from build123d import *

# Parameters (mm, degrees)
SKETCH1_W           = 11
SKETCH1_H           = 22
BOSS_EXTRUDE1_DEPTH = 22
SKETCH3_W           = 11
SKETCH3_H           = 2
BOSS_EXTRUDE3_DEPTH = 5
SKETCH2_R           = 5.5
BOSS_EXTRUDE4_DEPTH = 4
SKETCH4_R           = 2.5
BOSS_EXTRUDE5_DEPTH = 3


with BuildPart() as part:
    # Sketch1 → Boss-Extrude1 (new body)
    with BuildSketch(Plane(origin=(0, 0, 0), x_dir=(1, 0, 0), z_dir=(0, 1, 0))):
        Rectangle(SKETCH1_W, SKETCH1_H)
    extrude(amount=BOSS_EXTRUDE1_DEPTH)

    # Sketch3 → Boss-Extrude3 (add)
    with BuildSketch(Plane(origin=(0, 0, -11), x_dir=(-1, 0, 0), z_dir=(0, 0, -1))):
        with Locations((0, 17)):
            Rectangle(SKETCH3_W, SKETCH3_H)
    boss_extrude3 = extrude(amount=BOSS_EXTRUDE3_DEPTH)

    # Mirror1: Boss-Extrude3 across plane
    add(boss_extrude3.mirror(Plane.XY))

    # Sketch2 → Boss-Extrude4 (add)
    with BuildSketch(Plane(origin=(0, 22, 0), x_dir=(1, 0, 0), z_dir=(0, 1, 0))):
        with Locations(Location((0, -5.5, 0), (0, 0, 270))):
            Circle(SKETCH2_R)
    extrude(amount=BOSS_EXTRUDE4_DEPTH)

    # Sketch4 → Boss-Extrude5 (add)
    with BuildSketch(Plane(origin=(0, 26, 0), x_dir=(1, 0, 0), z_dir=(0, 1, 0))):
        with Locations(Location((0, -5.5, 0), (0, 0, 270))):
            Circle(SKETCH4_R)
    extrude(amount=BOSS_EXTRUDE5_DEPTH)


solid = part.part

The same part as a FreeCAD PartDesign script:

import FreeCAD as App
import Part
import Sketcher
Q = App.Units.Quantity

doc = App.newDocument("Part")
body = doc.addObject("PartDesign::Body", "Body")

sketch1 = body.newObject("Sketcher::SketchObject", "Sketch")
sketch1.AttachmentSupport = (doc.getObject("XZ_Plane"), [""])
sketch1.MapMode = "FlatFace"
sketch1.addGeometry([
    Part.LineSegment(App.Vector(-6, -11, 0), App.Vector(-6, 11, 0)),
    Part.LineSegment(App.Vector(-6, 11, 0), App.Vector(6, 11, 0)),
    Part.LineSegment(App.Vector(6, 11, 0), App.Vector(6, -11, 0)),
    Part.LineSegment(App.Vector(6, -11, 0), App.Vector(-6, -11, 0)),
], False)
sketch1.addConstraint([
    Sketcher.Constraint("Coincident", 0, 2, 1, 1),
    Sketcher.Constraint("Coincident", 1, 2, 2, 1),
    Sketcher.Constraint("Coincident", 2, 2, 3, 1),
    Sketcher.Constraint("Coincident", 3, 2, 0, 1),
    Sketcher.Constraint("Vertical", 0),
    Sketcher.Constraint("Horizontal", 1),
    Sketcher.Constraint("Vertical", 2),
    Sketcher.Constraint("Horizontal", 3),
    Sketcher.Constraint("Symmetric", 0, 2, 2, 2, -1, 1),
    Sketcher.Constraint("DistanceX", 1, 1, 1, 2, Q("11 mm")),
    Sketcher.Constraint("DistanceY", 0, 1, 0, 2, Q("22 mm")),
])
pad1 = body.newObject("PartDesign::Pad", "Pad")
pad1.Profile = sketch1
pad1.Length = 22
pad1.Reversed = True

sketch2 = body.newObject("Sketcher::SketchObject", "Sketch001")
sketch2.AttachmentSupport = (doc.getObject("XY_Plane"), [""])
sketch2.MapMode = "FlatFace"
sketch2.AttachmentOffset = App.Placement(App.Vector(0, 0, -11), App.Rotation())
sketch2.addGeometry([
    Part.LineSegment(App.Vector(5.5, 18, 0), App.Vector(5.5, 16, 0)),
    Part.LineSegment(App.Vector(5.5, 16, 0), App.Vector(-5.5, 16, 0)),
    Part.LineSegment(App.Vector(-5.5, 16, 0), App.Vector(-5.5, 18, 0)),
    Part.LineSegment(App.Vector(-5.5, 18, 0), App.Vector(5.5, 18, 0)),
], False)
sketch2.addConstraint([
    Sketcher.Constraint("Coincident", 0, 2, 1, 1),
    Sketcher.Constraint("Coincident", 1, 2, 2, 1),
    Sketcher.Constraint("Coincident", 2, 2, 3, 1),
    Sketcher.Constraint("Coincident", 3, 2, 0, 1),
    Sketcher.Constraint("Vertical", 0),
    Sketcher.Constraint("Horizontal", 1),
    Sketcher.Constraint("Vertical", 2),
    Sketcher.Constraint("Horizontal", 3),
    Sketcher.Constraint("DistanceX", 1, 2, 1, 1, Q("11 mm")),
    Sketcher.Constraint("DistanceY", 0, 2, 0, 1, Q("2 mm")),
    Sketcher.Constraint("DistanceY", -1, 1, 0, 2, Q("16 mm")),
    Sketcher.Constraint("DistanceX", -1, 1, 0, 2, Q("5.5 mm")),
])
pad2 = body.newObject("PartDesign::Pad", "Pad001")
pad2.Profile = sketch2
pad2.Length = 5
pad2.Reversed = True
doc.recompute()

mirrored = body.newObject("PartDesign::Mirrored", "Mirrored")
mirrored.Originals = [pad2]
mirrored.MirrorPlane = (doc.getObject("XY_Plane"), [""])
body.Tip = mirrored

sketch3 = body.newObject("Sketcher::SketchObject", "Sketch002")
sketch3.AttachmentSupport = (doc.getObject("XZ_Plane"), [""])
sketch3.MapMode = "FlatFace"
sketch3.AttachmentOffset = App.Placement(App.Vector(0, 0, -22), App.Rotation())
sketch3.addGeometry(Part.Circle(App.Vector(0, 6, 0), App.Vector(0, 0, 1), 6), False)
sketch3.addConstraint([
    Sketcher.Constraint("PointOnObject", 0, 3, -2),
    Sketcher.Constraint("Diameter", 0, Q("11 mm")),
    Sketcher.Constraint("DistanceY", -1, 1, 0, 3, Q("5.5 mm")),
])
pad3 = body.newObject("PartDesign::Pad", "Pad002")
pad3.Profile = sketch3
pad3.Length = 4
pad3.Reversed = True

sketch4 = body.newObject("Sketcher::SketchObject", "Sketch003")
sketch4.AttachmentSupport = (doc.getObject("XZ_Plane"), [""])
sketch4.MapMode = "FlatFace"
sketch4.AttachmentOffset = App.Placement(App.Vector(0, 0, -26), App.Rotation())
sketch4.addGeometry(Part.Circle(App.Vector(0, 5.5, 0), App.Vector(0, 0, 1), 2.5), False)
sketch4.addConstraint([
    Sketcher.Constraint("PointOnObject", 0, 3, -2),
    Sketcher.Constraint("Diameter", 0, Q("5 mm")),
    Sketcher.Constraint("DistanceY", -1, 1, 0, 3, Q("5.5 mm")),
])
pad4 = body.newObject("PartDesign::Pad", "Pad003")
pad4.Profile = sketch4
pad4.Length = 3
pad4.Reversed = True

doc.recompute()
